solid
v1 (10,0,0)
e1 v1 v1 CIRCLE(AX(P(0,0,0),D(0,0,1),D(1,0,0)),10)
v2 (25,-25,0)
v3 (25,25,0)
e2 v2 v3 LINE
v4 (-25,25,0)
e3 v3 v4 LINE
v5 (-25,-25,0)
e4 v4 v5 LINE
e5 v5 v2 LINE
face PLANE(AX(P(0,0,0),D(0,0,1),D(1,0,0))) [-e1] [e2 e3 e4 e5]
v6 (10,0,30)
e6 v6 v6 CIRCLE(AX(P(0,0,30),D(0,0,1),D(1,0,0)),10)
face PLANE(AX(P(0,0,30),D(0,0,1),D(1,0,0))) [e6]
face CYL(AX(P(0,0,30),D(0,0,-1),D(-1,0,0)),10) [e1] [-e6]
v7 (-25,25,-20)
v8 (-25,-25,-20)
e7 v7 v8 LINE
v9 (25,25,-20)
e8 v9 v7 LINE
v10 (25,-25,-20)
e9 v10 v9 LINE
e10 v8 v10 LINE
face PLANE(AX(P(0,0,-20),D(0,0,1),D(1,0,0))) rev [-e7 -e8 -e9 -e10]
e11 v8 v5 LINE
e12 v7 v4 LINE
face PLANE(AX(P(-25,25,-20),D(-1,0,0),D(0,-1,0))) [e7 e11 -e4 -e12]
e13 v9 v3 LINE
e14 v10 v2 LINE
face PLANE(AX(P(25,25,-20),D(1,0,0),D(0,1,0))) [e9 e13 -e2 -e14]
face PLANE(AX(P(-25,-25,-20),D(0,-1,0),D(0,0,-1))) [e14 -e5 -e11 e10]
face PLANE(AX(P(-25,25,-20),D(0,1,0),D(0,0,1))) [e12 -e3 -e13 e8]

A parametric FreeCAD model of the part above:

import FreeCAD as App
import Part
import Sketcher

V = App.Vector
Q = App.Units.Quantity


def add_polygon(sketch, points):
    """Adds a closed chain of lines whose ends are joined by coincident constraints."""
    first, n = sketch.GeometryCount, len(points)
    for a, b in zip(points, points[1:] + points[:1]):
        sketch.addGeometry(Part.LineSegment(App.Vector(*a, 0), App.Vector(*b, 0)), False)
    for i in range(n):
        sketch.addConstraint(Sketcher.Constraint("Coincident", first + i, 2, first + (i + 1) % n, 1))

doc = App.newDocument("Part")
body = doc.addObject("PartDesign::Body", "Body")

# Sketch on XY plane
sketch1 = doc.addObject("Sketcher::SketchObject", "Sketch")
body.addObject(sketch1)
sketch1.AttachmentSupport = (doc.XY_Plane, [""])
sketch1.MapMode = "FlatFace"
add_polygon(sketch1, [(-25, 25), (-25, -25), (25, -25), (25, 25)])  # lines 0-3
sketch1.addConstraint(Sketcher.Constraint("Vertical", 0))
sketch1.addConstraint(Sketcher.Constraint("Horizontal", 1))
sketch1.addConstraint(Sketcher.Constraint("Vertical", 2))
sketch1.addConstraint(Sketcher.Constraint("Horizontal", 3))
sketch1.addConstraint(Sketcher.Constraint("Symmetric", 0, 2, 2, 2, -1, 1))
sketch1.addConstraint(Sketcher.Constraint("Equal", 3, 0))
sketch1.addConstraint(Sketcher.Constraint("DistanceX", 1, 1, 1, 2, Q("50 mm")))
pad1 = doc.addObject("PartDesign::Pad", "Pad")
body.addObject(pad1)
pad1.Profile = sketch1
pad1.Length = 20
pad1.Reversed = True

# Sketch on XY plane
sketch2 = doc.addObject("Sketcher::SketchObject", "Sketch001")
body.addObject(sketch2)
sketch2.AttachmentSupport = (doc.XY_Plane, [""])
sketch2.MapMode = "FlatFace"
sketch2.addGeometry(Part.Circle(V(0, 0, 0), V(0, 0, 1), 10), False)
sketch2.addConstraint(Sketcher.Constraint("Coincident", 0, 3, -1, 1))
sketch2.addConstraint(Sketcher.Constraint("Diameter", 0, Q("20 mm")))
pad2 = doc.addObject("PartDesign::Pad", "Pad001")
body.addObject(pad2)
pad2.Profile = sketch2
pad2.Length = 30

doc.recompute()
